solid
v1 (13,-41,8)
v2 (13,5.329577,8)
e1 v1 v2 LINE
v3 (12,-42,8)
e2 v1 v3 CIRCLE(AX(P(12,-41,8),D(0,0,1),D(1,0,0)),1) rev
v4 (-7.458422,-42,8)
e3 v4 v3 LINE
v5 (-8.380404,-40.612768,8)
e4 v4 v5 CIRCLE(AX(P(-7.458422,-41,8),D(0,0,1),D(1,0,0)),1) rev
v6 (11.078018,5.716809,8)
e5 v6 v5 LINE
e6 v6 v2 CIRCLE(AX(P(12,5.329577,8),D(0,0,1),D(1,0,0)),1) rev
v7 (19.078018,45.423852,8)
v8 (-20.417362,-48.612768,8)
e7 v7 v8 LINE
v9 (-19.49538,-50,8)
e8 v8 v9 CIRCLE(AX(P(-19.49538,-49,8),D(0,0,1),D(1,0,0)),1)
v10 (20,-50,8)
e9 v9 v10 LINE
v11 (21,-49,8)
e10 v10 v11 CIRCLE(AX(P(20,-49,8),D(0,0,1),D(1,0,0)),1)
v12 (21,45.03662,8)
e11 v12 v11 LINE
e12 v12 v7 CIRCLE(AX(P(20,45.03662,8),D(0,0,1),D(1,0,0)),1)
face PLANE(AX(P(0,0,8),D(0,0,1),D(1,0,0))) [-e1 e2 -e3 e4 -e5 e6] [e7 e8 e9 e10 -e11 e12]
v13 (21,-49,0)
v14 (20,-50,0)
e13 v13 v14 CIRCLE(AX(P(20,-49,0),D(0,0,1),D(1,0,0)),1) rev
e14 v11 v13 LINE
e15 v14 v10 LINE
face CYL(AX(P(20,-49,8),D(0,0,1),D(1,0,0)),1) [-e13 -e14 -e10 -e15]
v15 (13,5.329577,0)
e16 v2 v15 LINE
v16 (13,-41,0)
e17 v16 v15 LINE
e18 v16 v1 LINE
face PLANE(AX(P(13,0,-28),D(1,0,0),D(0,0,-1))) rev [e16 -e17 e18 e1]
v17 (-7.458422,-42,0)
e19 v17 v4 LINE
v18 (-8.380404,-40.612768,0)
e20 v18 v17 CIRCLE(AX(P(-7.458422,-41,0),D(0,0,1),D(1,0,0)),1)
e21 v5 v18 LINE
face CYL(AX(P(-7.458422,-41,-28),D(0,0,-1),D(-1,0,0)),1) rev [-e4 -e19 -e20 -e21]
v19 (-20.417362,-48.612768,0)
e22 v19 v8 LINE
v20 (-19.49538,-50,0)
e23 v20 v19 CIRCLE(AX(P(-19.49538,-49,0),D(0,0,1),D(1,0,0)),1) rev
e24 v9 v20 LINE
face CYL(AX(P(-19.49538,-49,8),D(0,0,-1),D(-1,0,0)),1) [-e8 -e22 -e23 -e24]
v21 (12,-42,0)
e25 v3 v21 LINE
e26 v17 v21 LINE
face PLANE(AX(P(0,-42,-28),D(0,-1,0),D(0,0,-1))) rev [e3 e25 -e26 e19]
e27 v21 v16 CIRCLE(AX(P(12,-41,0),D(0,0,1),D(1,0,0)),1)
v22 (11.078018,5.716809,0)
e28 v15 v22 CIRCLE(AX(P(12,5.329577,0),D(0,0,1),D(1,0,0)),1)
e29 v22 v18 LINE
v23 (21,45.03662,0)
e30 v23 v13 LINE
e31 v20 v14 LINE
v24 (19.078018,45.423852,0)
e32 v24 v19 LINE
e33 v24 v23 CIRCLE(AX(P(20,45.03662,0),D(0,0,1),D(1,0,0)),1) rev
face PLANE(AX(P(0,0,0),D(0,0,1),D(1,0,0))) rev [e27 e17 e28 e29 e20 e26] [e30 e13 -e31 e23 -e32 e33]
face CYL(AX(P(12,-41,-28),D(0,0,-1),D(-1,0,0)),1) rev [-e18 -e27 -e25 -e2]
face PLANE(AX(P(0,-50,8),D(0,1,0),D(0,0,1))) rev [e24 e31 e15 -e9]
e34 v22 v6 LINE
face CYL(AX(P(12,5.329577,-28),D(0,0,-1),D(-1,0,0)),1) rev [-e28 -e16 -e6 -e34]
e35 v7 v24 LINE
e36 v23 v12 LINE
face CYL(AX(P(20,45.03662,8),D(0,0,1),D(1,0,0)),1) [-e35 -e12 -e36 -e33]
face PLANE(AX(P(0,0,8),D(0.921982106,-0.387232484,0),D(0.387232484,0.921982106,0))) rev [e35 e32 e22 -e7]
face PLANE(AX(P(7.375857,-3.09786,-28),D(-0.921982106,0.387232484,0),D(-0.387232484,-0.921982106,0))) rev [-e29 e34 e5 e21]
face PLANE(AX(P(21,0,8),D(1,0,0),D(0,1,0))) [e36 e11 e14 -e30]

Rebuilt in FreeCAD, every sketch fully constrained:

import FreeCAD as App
import Part
import Sketcher


def edges_at(feature, points):
    """Names of the edges that pass closest to the given points."""
    edges = feature.Shape.Edges
    near = lambda p: min(range(len(edges)), key=lambda i: edges[i].distToShape(Part.Vertex(*p))[0])
    return sorted({f"Edge{near(p) + 1}" for p in points})


def add_polygon(sketch, points):
    """Adds a closed chain of lines whose ends are joined by coincident constraints."""
    first, n = sketch.GeometryCount, len(points)
    for a, b in zip(points, points[1:] + points[:1]):
        sketch.addGeometry(Part.LineSegment(App.Vector(*a, 0), App.Vector(*b, 0)), False)
    for i in range(n):
        sketch.addConstraint(Sketcher.Constraint("Coincident", first + i, 2, first + (i + 1) % n, 1))

doc = App.newDocument("Part")
body = doc.addObject("PartDesign::Body", "Body")

# Sketch on XY plane
sketch1 = body.newObject("Sketcher::SketchObject", "Sketch")
sketch1.AttachmentSupport = (doc.getObject("XY_Plane"), [""])
sketch1.MapMode = "FlatFace"
add_polygon(sketch1, [(21, -50), (21, 50), (-21, -50)])  # lines 0-2
sketch1.addConstraint([
    Sketcher.Constraint("Vertical", 0),
    Sketcher.Constraint("Horizontal", 2),
    Sketcher.Constraint("Symmetric", 0, 2, 1, 2, -1, 1),
    Sketcher.Constraint("DistanceX", 2, 1, 2, 2, 42.0),
    Sketcher.Constraint("DistanceY", 0, 1, 0, 2, 100.0),
])
pad1 = body.newObject("PartDesign::Pad", "Pad")
pad1.Profile = sketch1
pad1.Length = 8
doc.recompute()

fillet = body.newObject("PartDesign::Fillet", "Fillet")
fillet.Base = (pad1, edges_at(pad1, [(21, -50, 4), (-21, -50, 4), (21, 50, 4)]))
fillet.Radius = 1

# Sketch on XY plane
sketch2 = body.newObject("Sketcher::SketchObject", "Sketch001")
sketch2.AttachmentSupport = (doc.getObject("XY_Plane"), [""])
sketch2.MapMode = "FlatFace"
sketch2.AttachmentOffset = App.Placement(App.Vector(0, 0, 8), App.Rotation())
add_polygon(sketch2, [(13, -42), (13, 10.292957), (-8.963042, -42)])  # lines 0-2
sketch2.addConstraint([
    Sketcher.Constraint("Vertical", 0),
    Sketcher.Constraint("Horizontal", 2),
    Sketcher.Constraint("DistanceX", -1, 1, 0, 2, 13.0),
    Sketcher.Constraint("DistanceY", 1, 2, -1, 1, 42.0),
    Sketcher.Constraint("DistanceX", 2, 1, 2, 2, 21.963042),
    Sketcher.Constraint("DistanceY", 0, 1, 0, 2, 52.292957),
])
pocket1 = body.newObject("PartDesign::Pocket", "Pocket")
pocket1.Profile = sketch2
pocket1.Length = 36
doc.recompute()

fillet2 = body.newObject("PartDesign::Fillet", "Fillet001")
fillet2.Base = (pocket1, edges_at(pocket1, [(13, 10.293, 4), (13, -42, 4), (-8.963, -42, 4)]))
fillet2.Radius = 1

doc.recompute()
